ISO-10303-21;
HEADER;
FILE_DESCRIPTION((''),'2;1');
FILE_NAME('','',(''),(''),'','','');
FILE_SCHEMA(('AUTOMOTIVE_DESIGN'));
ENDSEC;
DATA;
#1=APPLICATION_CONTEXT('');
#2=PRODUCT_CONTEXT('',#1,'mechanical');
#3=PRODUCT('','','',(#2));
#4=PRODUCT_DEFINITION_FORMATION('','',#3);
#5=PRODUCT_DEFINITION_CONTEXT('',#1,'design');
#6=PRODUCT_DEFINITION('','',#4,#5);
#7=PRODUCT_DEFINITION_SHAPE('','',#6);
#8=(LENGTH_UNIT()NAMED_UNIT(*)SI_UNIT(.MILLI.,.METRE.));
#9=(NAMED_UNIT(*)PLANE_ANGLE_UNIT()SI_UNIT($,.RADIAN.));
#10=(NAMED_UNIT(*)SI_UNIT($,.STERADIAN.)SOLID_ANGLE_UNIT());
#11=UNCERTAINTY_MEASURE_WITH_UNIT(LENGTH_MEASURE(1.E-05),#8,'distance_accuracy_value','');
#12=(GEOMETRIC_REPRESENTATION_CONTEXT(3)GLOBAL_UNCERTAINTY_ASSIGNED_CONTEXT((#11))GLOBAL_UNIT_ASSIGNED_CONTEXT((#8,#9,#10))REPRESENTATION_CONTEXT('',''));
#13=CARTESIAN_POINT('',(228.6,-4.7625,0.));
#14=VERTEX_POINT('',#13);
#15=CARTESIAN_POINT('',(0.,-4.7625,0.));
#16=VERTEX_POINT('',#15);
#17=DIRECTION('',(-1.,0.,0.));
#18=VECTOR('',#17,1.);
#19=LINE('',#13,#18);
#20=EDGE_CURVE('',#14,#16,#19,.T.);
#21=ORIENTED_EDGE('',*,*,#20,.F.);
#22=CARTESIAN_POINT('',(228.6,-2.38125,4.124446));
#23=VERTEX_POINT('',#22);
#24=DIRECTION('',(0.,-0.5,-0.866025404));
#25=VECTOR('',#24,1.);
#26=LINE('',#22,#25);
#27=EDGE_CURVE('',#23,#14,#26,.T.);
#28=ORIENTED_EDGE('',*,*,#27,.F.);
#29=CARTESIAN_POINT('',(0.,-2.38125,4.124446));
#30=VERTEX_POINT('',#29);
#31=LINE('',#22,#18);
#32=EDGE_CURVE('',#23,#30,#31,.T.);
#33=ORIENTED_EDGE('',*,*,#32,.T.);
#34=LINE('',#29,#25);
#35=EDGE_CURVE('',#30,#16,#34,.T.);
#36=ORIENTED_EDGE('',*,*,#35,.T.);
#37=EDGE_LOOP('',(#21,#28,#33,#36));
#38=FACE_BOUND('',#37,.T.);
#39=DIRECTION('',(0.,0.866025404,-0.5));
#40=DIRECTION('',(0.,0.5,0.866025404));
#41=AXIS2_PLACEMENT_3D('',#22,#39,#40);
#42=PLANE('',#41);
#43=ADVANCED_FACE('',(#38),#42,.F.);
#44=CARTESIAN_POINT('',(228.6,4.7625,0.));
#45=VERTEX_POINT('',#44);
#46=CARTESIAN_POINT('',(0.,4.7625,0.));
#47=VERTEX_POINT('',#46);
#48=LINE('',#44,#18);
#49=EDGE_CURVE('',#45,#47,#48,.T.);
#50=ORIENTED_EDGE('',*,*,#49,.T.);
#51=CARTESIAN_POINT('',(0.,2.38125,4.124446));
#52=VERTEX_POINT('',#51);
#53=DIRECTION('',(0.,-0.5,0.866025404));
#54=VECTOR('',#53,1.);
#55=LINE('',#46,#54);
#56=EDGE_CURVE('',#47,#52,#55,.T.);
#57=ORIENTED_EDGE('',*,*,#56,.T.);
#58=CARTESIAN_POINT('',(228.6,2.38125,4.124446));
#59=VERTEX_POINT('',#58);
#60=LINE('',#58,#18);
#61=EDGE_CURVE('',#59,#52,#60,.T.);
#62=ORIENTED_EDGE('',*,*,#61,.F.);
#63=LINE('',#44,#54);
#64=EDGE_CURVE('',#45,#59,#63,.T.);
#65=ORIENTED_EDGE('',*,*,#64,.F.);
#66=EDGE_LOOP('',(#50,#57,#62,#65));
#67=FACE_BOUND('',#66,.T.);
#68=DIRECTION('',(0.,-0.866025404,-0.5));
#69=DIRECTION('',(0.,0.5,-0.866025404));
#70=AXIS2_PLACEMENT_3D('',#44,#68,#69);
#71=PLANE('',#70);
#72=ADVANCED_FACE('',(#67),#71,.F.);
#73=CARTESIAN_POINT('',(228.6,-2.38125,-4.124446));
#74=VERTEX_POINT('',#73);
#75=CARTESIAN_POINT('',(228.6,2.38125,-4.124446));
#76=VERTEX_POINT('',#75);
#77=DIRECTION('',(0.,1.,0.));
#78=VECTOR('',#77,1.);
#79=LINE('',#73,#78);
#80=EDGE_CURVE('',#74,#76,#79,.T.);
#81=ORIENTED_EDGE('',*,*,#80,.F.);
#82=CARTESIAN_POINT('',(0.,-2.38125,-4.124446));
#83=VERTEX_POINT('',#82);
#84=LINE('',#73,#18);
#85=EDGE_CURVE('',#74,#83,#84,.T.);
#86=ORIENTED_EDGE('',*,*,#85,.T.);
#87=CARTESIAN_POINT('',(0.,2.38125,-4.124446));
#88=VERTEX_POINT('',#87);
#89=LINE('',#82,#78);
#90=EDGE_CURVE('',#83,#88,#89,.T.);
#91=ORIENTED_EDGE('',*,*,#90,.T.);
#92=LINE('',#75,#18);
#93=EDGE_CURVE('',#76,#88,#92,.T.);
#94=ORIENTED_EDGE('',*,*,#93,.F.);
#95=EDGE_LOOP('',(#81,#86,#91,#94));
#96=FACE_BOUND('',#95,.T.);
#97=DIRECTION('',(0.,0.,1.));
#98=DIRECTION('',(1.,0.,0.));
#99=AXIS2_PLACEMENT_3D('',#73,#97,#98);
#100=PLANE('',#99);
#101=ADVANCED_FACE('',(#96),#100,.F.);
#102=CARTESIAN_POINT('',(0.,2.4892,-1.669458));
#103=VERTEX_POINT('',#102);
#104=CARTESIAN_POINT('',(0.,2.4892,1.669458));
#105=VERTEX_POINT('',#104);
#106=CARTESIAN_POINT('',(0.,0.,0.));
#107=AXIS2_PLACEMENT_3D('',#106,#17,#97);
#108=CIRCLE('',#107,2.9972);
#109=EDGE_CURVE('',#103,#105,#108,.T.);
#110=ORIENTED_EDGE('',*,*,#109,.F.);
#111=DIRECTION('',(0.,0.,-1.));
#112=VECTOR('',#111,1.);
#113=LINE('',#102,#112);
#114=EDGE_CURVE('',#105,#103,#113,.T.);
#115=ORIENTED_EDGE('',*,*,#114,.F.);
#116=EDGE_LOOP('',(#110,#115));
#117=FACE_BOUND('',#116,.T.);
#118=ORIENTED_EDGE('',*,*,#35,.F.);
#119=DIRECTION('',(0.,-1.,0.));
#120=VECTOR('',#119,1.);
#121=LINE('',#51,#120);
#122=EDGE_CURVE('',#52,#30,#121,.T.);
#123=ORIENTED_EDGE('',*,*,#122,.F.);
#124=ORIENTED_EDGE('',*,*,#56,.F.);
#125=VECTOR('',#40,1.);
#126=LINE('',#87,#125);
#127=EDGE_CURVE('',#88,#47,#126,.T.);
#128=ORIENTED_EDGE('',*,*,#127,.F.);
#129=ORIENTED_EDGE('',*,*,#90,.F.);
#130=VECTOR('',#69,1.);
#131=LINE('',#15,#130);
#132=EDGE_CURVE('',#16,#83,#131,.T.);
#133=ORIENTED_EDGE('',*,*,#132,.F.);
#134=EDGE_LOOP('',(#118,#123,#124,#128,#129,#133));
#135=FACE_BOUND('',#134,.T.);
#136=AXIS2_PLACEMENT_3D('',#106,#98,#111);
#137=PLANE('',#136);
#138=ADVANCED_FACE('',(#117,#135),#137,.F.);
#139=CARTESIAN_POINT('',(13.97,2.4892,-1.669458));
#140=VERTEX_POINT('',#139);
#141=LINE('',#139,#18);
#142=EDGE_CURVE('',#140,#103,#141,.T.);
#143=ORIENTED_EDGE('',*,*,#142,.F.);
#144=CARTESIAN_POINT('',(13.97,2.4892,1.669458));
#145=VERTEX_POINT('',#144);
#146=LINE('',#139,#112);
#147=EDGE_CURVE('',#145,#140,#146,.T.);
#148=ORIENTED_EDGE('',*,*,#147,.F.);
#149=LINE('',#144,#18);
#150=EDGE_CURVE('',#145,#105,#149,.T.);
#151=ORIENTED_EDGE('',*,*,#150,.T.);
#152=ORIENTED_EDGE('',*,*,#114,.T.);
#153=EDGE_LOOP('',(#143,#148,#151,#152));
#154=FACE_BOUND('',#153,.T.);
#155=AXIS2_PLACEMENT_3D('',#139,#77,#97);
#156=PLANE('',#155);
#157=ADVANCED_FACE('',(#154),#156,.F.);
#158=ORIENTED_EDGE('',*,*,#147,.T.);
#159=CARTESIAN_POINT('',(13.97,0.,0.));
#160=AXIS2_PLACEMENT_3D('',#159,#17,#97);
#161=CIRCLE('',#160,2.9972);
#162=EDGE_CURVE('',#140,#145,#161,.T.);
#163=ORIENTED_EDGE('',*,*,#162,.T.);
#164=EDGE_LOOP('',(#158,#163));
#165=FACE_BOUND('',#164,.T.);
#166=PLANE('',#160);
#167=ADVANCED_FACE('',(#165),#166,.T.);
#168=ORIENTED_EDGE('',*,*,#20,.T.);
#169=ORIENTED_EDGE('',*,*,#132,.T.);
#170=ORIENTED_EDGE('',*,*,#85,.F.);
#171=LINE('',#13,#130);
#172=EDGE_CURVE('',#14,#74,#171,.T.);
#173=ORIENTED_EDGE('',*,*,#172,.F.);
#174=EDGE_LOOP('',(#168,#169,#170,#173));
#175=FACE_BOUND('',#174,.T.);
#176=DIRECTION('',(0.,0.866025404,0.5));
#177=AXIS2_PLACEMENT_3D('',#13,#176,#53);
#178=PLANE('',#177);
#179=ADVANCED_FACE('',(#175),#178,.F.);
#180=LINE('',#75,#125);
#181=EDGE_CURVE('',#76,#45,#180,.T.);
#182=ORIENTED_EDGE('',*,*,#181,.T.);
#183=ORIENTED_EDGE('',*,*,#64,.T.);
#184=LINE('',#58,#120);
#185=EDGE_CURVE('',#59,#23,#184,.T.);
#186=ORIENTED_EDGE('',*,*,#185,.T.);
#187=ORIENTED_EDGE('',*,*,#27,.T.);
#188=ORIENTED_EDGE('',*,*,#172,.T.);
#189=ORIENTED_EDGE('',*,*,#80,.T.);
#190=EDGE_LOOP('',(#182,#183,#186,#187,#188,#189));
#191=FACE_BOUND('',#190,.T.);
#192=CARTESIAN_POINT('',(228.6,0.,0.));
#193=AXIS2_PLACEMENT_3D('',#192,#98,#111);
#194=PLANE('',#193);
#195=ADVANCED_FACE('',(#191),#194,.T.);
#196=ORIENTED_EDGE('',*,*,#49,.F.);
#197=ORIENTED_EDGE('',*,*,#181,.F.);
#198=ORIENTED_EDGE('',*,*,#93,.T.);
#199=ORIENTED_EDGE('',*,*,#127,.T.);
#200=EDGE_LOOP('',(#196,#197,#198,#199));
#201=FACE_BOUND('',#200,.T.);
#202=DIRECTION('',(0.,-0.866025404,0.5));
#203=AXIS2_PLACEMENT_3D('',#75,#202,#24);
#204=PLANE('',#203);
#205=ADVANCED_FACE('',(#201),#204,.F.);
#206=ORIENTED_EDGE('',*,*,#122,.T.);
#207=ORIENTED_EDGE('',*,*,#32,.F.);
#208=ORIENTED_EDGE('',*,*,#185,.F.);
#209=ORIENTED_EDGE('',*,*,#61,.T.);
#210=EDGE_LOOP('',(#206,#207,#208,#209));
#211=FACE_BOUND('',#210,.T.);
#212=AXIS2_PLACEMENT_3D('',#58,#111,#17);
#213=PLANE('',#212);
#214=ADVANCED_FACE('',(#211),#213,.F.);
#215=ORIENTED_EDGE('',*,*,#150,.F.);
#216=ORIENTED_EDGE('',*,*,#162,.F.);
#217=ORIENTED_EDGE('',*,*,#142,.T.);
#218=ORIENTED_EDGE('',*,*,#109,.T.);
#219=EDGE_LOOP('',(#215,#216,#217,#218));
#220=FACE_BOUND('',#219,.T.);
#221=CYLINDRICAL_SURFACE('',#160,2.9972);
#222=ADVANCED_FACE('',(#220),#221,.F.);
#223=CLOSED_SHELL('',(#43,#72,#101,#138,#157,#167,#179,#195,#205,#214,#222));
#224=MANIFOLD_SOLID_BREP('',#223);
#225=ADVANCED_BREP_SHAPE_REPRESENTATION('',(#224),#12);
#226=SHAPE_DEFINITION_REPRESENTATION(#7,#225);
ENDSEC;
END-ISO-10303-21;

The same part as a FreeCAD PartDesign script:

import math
import FreeCAD as App
import Part
import Sketcher
from FreeCAD import Vector
Q = App.Units.Quantity


def add_polygon(sketch, points):
    """Adds a closed chain of lines whose ends are joined by coincident constraints."""
    first, n = sketch.GeometryCount, len(points)
    for a, b in zip(points, points[1:] + points[:1]):
        sketch.addGeometry(Part.LineSegment(App.Vector(*a, 0), App.Vector(*b, 0)), False)
    for i in range(n):
        sketch.addConstraint(Sketcher.Constraint("Coincident", first + i, 2, first + (i + 1) % n, 1))

doc = App.newDocument("Part")
body = doc.addObject("PartDesign::Body", "Body")

sketch1 = body.newObject("Sketcher::SketchObject", "Sketch")
sketch1.AttachmentSupport = (doc.getObject("YZ_Plane"), [""])
sketch1.MapMode = "FlatFace"
add_polygon(sketch1, [(-2.4, -4.1), (2.4, -4.1), (4.8, 0), (2.4, 4.1), (-2.4, 4.1), (-4.8, 0)])
sketch1.addConstraint([
    Sketcher.Constraint("Horizontal", 0),
    Sketcher.Constraint("Horizontal", 3),
    Sketcher.Constraint("Symmetric", 0, 2, 3, 2, -1, 1),
    Sketcher.Constraint("Symmetric", 1, 2, 4, 2, -1, 1),
    Sketcher.Constraint("PointOnObject", 1, 2, -1),
    Sketcher.Constraint("Parallel", 2, 5),
    Sketcher.Constraint("Vertical", 0, 2, 2, 2),
    Sketcher.Constraint("Angle", 1, Q("60 deg")),
    Sketcher.Constraint("DistanceX", 0, 1, 0, 2, Q("0.1875 in")),
    Sketcher.Constraint("Distance", 1, Q("0.1875 in")),
])
pad1 = body.newObject("PartDesign::Pad", "Pad")
pad1.Profile = sketch1
pad1.Length = Q("9 in")

sketch2 = body.newObject("Sketcher::SketchObject", "Sketch001")
sketch2.AttachmentSupport = (doc.getObject("YZ_Plane"), [""])
sketch2.MapMode = "FlatFace"
sketch2.addGeometry([
    Part.LineSegment(Vector(2.5, 1.7, 0), Vector(2.5, -1.7, 0)),
    Part.ArcOfCircle(Part.Circle(Vector(0, 0, 0), Vector(0, 0, 1), 3), math.radians(34), math.radians(326)),
], False)
sketch2.addConstraint([
    Sketcher.Constraint("Coincident", 0, 1, 1, 1),
    Sketcher.Constraint("Coincident", 1, 2, 0, 2),
    Sketcher.Constraint("Vertical", 0),
    Sketcher.Constraint("Coincident", 1, 3, -1, 1),
    Sketcher.Constraint("Radius", 1, Q("0.118 in")),
    Sketcher.Constraint("DistanceX", -1, 1, 0, 1, Q("0.098 in")),
])
pocket1 = body.newObject("PartDesign::Pocket", "Pocket")
pocket1.Profile = sketch2
pocket1.Length = Q("0.55 in")
pocket1.Reversed = True

doc.recompute()
